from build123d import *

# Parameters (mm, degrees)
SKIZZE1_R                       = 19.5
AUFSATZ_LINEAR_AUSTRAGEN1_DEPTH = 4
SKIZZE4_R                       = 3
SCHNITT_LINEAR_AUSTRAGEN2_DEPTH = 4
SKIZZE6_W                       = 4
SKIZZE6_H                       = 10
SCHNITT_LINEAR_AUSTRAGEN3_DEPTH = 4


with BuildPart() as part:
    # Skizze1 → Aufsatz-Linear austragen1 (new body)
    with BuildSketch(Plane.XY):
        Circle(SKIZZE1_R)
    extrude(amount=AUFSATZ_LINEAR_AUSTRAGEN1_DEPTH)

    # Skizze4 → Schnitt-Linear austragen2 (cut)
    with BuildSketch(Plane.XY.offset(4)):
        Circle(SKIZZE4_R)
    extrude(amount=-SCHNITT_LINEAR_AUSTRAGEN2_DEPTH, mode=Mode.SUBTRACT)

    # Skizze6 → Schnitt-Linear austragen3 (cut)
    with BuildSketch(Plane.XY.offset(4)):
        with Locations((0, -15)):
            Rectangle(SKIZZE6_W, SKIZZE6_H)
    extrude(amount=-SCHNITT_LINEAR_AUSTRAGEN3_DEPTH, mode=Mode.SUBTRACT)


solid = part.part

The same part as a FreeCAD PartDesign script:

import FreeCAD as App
import Part
import Sketcher

V = App.Vector
Q = App.Units.Quantity


def add_polygon(sketch, points):
    """Adds a closed chain of lines whose ends are joined by coincident constraints."""
    first, n = sketch.GeometryCount, len(points)
    for a, b in zip(points, points[1:] + points[:1]):
        sketch.addGeometry(Part.LineSegment(App.Vector(*a, 0), App.Vector(*b, 0)), False)
    for i in range(n):
        sketch.addConstraint(Sketcher.Constraint("Coincident", first + i, 2, first + (i + 1) % n, 1))

doc = App.newDocument("Part")
params = doc.addObject("Spreadsheet::Sheet", "Params")
for row, (alias, value) in enumerate([
    ("sketch1_diameter", "39 mm"),
    ("pad1_length", "4 mm"),
    ("sketch2_diameter", "6 mm"),
    ("pocket1_length", "4 mm"),
    ("sketch3_width", "4 mm"),
    ("sketch3_height", "10 mm"),
    ("pocket2_length", "4 mm"),
], start=1):
    params.set(f"A{row}", alias)
    params.set(f"B{row}", "=" + value)
    params.setAlias(f"B{row}", alias)

body = doc.addObject("PartDesign::Body", "Body")

sketch1 = body.newObject("Sketcher::SketchObject", "Sketch")
sketch1.AttachmentSupport = (doc.getObject("XY_Plane"), [""])
sketch1.MapMode = "FlatFace"
sketch1.addGeometry(Part.Circle(V(0, 0, 0), V(0, 0, 1), 19.5), False)
sketch1.addConstraint([
    Sketcher.Constraint("Coincident", 0, 3, -1, 1),
    Sketcher.Constraint("Diameter", 0, Q("39 mm")),
])
sketch1.setExpression("Constraints[1]", "Params.sketch1_diameter")
pad1 = body.newObject("PartDesign::Pad", "Pad")
pad1.Profile = sketch1
pad1.setExpression("Length", "Params.pad1_length")

sketch2 = body.newObject("Sketcher::SketchObject", "Sketch001")
sketch2.AttachmentSupport = (doc.getObject("XY_Plane"), [""])
sketch2.MapMode = "FlatFace"
sketch2.AttachmentOffset = App.Placement(V(0, 0, 4), App.Rotation())
sketch2.addGeometry(Part.Circle(V(0, 0, 0), V(0, 0, 1), 3), False)
sketch2.addConstraint([
    Sketcher.Constraint("Coincident", 0, 3, -1, 1),
    Sketcher.Constraint("Diameter", 0, Q("6 mm")),
])
sketch2.setExpression("Constraints[1]", "Params.sketch2_diameter")
pocket1 = body.newObject("PartDesign::Pocket", "Pocket")
pocket1.Profile = sketch2
pocket1.setExpression("Length", "Params.pocket1_length")

sketch3 = body.newObject("Sketcher::SketchObject", "Sketch002")
sketch3.AttachmentSupport = (doc.getObject("XY_Plane"), [""])
sketch3.MapMode = "FlatFace"
sketch3.AttachmentOffset = App.Placement(V(0, 0, 4), App.Rotation())
add_polygon(sketch3, [(-2, -10), (-2, -20), (2, -20), (2, -10)])
sketch3.addConstraint([
    Sketcher.Constraint("Vertical", 0),
    Sketcher.Constraint("Horizontal", 1),
    Sketcher.Constraint("Vertical", 2),
    Sketcher.Constraint("Horizontal", 3),
    Sketcher.Constraint("DistanceX", 1, 1, 1, 2, Q("4 mm")),
    Sketcher.Constraint("DistanceY", 0, 2, 0, 1, Q("10 mm")),
    Sketcher.Constraint("DistanceX", 0, 2, -1, 1, Q("2 mm")),
    Sketcher.Constraint("DistanceY", 0, 2, -1, 1, Q("20 mm")),
])
sketch3.setExpression("Constraints[8]", "Params.sketch3_width")
sketch3.setExpression("Constraints[9]", "Params.sketch3_height")
pocket2 = body.newObject("PartDesign::Pocket", "Pocket001")
pocket2.Profile = sketch3
pocket2.setExpression("Length", "Params.pocket2_length")

doc.recompute()
